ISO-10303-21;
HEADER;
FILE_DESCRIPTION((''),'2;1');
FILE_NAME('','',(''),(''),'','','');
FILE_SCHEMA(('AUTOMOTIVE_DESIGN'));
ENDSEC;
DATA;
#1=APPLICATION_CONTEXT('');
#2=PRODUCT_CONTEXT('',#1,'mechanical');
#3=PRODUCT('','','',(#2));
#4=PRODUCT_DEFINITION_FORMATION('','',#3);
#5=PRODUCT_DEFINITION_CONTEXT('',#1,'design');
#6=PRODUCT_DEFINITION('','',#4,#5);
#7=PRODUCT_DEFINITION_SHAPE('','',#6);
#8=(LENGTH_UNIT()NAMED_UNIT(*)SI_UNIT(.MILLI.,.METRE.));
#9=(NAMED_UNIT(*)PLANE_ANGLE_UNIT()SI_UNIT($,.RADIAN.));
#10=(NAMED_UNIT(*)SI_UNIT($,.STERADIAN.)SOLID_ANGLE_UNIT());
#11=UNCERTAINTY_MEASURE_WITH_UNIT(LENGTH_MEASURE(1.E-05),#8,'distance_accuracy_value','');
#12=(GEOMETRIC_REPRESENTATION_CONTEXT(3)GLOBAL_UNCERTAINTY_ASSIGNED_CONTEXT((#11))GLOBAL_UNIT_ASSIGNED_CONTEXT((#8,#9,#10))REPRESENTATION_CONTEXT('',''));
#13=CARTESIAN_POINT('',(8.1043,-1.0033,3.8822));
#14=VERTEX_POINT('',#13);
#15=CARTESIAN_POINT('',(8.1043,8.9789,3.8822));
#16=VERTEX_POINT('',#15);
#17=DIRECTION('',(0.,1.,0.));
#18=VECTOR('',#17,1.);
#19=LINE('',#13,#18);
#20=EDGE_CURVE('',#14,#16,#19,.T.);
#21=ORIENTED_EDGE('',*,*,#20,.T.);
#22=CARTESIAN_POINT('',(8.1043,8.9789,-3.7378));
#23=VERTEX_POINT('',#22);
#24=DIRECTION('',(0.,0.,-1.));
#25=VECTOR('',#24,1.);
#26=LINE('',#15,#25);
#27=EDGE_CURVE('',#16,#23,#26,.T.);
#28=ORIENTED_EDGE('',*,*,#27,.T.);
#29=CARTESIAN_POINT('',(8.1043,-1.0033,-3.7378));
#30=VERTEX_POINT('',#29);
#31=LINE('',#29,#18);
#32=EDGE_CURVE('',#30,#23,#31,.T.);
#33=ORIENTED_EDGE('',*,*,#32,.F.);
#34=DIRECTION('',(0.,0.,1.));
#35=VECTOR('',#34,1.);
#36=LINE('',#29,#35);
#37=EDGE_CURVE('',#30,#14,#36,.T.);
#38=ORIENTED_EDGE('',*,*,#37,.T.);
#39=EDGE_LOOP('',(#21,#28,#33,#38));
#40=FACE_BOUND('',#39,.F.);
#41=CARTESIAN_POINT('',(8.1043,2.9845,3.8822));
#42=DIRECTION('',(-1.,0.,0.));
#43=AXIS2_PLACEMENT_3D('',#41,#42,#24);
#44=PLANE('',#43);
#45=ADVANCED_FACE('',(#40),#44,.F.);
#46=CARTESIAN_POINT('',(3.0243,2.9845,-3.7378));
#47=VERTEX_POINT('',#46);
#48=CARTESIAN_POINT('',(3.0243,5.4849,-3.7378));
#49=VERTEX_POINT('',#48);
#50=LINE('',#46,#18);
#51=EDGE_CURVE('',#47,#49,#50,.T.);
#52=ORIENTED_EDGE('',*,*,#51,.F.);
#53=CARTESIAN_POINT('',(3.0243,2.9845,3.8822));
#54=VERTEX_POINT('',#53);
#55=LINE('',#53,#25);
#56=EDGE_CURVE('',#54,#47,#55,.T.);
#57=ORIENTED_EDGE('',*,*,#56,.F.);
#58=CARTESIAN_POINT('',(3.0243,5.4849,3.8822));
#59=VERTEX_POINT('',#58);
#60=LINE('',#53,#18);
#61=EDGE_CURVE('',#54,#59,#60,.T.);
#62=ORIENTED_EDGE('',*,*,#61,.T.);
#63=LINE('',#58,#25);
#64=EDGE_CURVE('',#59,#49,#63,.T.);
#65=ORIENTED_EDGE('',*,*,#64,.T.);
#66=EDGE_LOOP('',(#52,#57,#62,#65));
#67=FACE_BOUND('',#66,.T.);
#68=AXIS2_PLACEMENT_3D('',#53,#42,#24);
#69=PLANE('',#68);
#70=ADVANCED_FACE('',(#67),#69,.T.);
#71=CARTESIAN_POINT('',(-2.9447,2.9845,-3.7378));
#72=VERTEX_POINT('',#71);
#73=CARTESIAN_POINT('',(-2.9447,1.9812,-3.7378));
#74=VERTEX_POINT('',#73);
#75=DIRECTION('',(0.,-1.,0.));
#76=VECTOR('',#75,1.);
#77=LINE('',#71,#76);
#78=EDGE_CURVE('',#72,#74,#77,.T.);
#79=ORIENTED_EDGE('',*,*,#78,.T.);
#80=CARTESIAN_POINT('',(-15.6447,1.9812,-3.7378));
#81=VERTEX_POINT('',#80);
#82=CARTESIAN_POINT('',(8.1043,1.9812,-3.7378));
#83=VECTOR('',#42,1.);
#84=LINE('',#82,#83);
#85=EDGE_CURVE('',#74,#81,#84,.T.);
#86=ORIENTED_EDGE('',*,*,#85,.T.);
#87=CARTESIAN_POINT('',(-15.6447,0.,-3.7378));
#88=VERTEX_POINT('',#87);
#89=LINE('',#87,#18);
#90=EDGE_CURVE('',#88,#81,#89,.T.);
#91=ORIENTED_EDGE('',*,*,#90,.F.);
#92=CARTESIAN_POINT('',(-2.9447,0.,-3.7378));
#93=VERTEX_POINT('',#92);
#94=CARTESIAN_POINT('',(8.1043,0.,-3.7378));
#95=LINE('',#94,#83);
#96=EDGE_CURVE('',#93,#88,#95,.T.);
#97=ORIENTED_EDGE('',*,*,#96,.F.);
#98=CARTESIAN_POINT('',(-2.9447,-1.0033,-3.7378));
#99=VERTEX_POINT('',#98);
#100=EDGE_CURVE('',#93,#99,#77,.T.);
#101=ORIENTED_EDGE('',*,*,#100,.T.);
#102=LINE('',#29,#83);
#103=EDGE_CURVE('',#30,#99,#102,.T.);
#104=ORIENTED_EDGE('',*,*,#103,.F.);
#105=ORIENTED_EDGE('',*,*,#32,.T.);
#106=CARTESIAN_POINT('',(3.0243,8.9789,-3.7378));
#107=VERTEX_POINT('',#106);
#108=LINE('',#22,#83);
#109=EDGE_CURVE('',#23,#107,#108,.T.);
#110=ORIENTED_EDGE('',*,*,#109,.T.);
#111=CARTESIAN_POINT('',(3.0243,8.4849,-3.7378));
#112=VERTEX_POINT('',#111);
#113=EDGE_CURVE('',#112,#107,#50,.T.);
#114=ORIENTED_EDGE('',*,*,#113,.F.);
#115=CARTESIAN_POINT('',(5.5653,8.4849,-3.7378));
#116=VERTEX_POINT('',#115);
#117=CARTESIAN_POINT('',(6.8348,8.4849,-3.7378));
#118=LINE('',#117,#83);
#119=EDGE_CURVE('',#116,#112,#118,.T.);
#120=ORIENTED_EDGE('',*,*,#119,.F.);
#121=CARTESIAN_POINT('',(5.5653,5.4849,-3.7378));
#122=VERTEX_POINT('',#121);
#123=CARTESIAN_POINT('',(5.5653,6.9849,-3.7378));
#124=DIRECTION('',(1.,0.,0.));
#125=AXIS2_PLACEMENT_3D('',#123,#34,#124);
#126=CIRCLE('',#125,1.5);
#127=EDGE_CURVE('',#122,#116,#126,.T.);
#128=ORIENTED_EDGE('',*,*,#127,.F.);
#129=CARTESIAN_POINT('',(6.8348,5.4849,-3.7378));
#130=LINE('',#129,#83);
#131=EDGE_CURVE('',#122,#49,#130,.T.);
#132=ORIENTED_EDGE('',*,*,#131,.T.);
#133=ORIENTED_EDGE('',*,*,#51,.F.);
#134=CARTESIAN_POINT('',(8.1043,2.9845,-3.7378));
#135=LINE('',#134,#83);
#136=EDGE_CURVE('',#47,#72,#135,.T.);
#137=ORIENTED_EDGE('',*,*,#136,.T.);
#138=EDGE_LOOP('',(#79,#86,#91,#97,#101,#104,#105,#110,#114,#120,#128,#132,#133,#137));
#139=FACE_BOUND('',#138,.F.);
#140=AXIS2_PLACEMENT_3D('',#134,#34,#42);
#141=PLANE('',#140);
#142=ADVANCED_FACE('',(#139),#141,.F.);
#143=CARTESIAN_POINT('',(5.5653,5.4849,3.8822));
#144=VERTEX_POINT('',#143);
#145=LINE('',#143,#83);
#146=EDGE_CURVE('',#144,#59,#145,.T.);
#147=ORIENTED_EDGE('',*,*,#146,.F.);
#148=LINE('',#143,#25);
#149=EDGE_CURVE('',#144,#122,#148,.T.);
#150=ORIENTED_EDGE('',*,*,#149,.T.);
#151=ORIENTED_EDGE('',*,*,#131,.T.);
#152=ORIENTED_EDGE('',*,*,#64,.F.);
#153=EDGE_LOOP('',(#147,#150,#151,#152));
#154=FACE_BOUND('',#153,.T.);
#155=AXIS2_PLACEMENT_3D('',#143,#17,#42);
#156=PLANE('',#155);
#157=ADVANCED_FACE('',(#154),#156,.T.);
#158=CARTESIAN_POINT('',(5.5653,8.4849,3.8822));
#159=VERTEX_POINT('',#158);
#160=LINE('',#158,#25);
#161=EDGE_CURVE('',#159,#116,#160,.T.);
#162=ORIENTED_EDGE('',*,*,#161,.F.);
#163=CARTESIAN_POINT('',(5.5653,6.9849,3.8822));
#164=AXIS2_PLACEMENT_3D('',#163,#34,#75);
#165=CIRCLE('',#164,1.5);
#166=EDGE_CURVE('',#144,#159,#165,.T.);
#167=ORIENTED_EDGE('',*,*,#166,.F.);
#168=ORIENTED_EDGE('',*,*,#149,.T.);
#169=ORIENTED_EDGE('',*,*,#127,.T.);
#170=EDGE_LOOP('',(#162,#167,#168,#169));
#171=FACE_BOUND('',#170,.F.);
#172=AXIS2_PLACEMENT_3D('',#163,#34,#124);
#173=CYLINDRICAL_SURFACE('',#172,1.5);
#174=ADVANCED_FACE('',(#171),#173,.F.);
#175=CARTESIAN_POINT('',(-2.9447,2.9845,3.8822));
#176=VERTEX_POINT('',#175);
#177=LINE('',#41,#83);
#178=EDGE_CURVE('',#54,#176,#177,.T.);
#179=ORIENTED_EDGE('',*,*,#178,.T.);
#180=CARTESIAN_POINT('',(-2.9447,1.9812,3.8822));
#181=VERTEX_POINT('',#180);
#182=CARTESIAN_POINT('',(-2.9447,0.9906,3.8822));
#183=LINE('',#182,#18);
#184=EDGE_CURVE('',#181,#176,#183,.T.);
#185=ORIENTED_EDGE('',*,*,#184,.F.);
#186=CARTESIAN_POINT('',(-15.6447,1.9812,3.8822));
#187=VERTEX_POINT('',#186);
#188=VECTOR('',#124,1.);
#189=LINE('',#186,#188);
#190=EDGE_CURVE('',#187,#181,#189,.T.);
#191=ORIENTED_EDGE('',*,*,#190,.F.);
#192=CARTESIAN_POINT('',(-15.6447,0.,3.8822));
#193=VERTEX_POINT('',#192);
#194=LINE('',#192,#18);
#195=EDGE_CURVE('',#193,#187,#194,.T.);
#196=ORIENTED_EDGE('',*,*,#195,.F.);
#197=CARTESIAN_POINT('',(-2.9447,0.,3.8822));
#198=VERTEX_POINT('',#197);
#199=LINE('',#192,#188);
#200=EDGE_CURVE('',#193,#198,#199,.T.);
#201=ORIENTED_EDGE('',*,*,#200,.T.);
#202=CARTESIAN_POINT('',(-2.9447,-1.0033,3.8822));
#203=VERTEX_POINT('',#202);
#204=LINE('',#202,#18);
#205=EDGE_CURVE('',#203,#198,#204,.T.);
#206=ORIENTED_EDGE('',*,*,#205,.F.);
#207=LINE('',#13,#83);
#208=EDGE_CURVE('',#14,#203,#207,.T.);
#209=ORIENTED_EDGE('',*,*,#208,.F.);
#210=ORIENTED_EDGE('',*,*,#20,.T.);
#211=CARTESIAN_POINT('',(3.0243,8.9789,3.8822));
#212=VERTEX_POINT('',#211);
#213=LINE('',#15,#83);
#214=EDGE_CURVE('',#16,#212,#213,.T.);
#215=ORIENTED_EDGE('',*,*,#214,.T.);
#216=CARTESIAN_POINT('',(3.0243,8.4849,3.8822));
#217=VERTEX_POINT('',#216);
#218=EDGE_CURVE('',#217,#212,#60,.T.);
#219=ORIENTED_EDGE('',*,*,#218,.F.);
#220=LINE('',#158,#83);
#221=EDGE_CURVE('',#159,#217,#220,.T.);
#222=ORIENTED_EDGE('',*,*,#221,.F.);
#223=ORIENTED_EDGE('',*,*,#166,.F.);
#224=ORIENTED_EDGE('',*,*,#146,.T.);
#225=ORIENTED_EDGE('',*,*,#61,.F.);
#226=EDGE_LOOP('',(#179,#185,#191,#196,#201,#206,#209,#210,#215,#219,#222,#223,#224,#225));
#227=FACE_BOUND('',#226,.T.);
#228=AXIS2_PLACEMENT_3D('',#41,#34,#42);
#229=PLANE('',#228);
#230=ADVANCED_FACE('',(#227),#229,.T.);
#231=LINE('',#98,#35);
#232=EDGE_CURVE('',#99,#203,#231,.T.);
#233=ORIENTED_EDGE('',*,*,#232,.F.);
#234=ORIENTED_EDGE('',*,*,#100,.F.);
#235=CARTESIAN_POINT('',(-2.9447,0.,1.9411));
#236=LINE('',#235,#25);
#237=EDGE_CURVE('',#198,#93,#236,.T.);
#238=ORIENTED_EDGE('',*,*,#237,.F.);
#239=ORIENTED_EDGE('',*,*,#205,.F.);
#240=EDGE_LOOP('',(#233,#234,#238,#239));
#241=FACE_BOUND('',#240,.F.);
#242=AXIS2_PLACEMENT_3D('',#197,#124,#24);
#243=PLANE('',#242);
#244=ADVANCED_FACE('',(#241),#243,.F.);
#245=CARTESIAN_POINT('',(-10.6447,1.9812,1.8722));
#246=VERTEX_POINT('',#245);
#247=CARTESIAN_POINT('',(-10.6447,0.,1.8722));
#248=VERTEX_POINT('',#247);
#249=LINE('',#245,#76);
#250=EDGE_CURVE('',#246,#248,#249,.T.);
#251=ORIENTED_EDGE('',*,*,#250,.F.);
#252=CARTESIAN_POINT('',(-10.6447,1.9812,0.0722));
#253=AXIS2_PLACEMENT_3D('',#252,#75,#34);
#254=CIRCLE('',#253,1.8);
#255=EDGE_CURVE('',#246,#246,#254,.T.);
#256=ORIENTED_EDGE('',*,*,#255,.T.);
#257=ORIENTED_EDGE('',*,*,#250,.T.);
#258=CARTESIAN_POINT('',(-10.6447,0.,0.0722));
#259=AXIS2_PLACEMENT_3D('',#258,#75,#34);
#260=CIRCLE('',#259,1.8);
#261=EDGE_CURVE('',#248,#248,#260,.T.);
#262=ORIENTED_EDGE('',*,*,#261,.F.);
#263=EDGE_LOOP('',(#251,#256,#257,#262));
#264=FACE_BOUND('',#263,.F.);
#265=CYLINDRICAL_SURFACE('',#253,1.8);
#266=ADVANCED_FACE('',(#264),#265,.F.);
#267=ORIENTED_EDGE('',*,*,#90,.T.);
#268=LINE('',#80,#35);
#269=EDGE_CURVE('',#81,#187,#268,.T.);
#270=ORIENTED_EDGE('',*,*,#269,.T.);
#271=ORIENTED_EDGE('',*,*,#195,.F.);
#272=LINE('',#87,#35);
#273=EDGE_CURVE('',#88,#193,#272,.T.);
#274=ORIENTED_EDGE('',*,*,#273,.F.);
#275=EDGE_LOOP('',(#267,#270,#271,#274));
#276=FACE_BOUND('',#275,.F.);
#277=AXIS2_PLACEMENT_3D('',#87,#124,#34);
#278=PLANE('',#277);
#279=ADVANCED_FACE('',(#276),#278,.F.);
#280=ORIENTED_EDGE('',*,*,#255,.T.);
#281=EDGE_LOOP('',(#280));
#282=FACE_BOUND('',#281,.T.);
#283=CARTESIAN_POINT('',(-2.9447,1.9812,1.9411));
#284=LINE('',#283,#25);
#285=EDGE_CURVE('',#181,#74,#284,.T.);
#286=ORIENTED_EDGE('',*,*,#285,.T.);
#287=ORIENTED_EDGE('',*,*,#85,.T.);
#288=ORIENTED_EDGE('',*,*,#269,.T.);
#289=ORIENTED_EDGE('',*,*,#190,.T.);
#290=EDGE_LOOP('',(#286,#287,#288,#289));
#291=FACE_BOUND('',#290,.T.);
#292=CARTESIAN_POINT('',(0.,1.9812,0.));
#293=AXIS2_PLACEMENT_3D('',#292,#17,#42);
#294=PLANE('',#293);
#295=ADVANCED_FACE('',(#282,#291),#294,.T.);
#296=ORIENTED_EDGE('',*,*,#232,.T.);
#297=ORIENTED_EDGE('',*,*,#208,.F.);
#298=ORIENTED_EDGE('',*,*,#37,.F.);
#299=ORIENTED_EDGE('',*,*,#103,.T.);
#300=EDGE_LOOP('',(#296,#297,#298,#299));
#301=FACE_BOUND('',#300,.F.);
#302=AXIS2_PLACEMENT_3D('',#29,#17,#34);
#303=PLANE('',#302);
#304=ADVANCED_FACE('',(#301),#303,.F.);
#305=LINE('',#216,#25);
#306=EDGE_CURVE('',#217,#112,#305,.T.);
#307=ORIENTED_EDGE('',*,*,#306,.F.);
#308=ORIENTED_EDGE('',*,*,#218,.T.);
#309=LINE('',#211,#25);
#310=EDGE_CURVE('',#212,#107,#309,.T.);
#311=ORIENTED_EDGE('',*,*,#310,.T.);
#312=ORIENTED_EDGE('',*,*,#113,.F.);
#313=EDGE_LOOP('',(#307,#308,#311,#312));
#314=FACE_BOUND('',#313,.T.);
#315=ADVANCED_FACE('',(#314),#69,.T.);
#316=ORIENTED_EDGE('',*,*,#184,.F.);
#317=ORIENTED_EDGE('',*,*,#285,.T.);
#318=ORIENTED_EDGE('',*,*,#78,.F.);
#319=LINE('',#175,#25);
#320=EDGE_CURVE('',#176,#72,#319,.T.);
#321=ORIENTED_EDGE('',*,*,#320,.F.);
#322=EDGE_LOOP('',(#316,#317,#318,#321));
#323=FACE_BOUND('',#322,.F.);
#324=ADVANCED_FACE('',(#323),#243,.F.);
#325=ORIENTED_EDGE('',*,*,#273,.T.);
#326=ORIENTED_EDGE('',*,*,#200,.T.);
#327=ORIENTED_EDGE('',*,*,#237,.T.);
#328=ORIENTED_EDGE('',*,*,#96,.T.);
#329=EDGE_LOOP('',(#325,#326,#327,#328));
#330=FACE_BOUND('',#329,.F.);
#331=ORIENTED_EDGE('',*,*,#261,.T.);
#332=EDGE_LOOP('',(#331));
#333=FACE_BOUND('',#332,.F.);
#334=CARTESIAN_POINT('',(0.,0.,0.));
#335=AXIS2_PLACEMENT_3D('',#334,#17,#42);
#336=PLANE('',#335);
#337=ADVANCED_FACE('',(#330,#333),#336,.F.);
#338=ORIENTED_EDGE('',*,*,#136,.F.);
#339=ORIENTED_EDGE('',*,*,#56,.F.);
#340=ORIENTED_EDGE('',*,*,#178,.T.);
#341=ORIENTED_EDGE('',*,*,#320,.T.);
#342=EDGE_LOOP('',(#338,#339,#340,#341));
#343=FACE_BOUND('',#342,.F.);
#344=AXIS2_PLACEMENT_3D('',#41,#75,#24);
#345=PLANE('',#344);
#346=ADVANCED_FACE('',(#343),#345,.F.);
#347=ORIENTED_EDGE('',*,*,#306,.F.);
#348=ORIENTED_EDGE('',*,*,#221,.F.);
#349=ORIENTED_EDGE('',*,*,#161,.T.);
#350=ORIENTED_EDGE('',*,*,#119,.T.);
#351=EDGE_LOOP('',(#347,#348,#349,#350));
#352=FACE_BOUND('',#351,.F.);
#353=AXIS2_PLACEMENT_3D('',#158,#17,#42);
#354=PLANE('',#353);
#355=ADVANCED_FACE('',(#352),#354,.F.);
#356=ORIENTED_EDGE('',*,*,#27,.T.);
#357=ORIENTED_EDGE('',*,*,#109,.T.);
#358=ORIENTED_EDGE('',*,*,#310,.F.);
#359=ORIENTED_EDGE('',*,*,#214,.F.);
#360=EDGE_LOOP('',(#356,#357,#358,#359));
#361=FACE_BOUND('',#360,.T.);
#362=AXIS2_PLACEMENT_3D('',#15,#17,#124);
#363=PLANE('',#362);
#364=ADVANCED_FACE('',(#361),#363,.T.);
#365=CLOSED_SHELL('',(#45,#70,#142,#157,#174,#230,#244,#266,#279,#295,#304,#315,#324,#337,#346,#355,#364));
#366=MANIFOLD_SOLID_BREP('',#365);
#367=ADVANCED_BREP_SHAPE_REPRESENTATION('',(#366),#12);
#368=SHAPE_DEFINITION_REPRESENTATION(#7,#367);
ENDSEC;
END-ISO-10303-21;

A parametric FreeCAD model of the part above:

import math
import FreeCAD as App
import Part
import Sketcher
from FreeCAD import Vector
Q = App.Units.Quantity


def add_polygon(sketch, points):
    """Adds a closed chain of lines whose ends are joined by coincident constraints."""
    first, n = sketch.GeometryCount, len(points)
    for a, b in zip(points, points[1:] + points[:1]):
        sketch.addGeometry(Part.LineSegment(App.Vector(*a, 0), App.Vector(*b, 0)), False)
    for i in range(n):
        sketch.addConstraint(Sketcher.Constraint("Coincident", first + i, 2, first + (i + 1) % n, 1))

doc = App.newDocument("Part")
params = doc.addObject("Spreadsheet::Sheet", "Params")
for row, (alias, value) in enumerate([
    ("sketch1_height", "0.3 in"),
    ("sketch1_width", "0.935 in"),
    ("pad1_length", "0.078 in"),
    ("sketch2_width", "0.157 in"),
    ("sketch2_height", "0.3 in"),
    ("pad2_length", "0.435 in"),
    ("sketch3_width", "0.2 in"),
    ("sketch3_height", "0.3 in"),
    ("pad3_length", "0.236 in"),
    ("pocket1_length", "0.3937008 in"),
    ("hole_diameter", "3.6 mm"),
], start=1):
    params.set(f"A{row}", alias)
    params.set(f"B{row}", "=" + value)
    params.setAlias(f"B{row}", alias)

body = doc.addObject("PartDesign::Body", "Body")

# Sketch on XZ plane
sketch1 = doc.addObject("Sketcher::SketchObject", "Sketch")
body.addObject(sketch1)
sketch1.AttachmentSupport = (doc.XZ_Plane, [""])
sketch1.MapMode = "FlatFace"
add_polygon(sketch1, [(-16, -4), (-16, 4), (8, 4), (8, -4)])  # lines 0-3
sketch1.addConstraint([
    Sketcher.Constraint("Vertical", 0),
    Sketcher.Constraint("Horizontal", 1),
    Sketcher.Constraint("Vertical", 2),
    Sketcher.Constraint("Horizontal", 3),
    Sketcher.Constraint("DistanceY", 0, 1, 0, 2, Q("0.3 in")),
    Sketcher.Constraint("DistanceX", 1, 1, 1, 2, Q("0.935 in")),
    Sketcher.Constraint("DistanceX", 0, 2, -1, 1, Q("15.6447 mm")),
    Sketcher.Constraint("DistanceY", -1, 1, 0, 2, Q("3.8822 mm")),
])
sketch1.setExpression("Constraints[8]", "Params.sketch1_height")
sketch1.setExpression("Constraints[9]", "Params.sketch1_width")
pad1 = doc.addObject("PartDesign::Pad", "Pad")
body.addObject(pad1)
pad1.Profile = sketch1
pad1.setExpression("Length", "Params.pad1_length")
pad1.Reversed = True

# Sketch on YZ plane
sketch2 = doc.addObject("Sketcher::SketchObject", "Sketch001")
body.addObject(sketch2)
sketch2.AttachmentSupport = (doc.YZ_Plane, [""])
sketch2.MapMode = "FlatFace"
sketch2.AttachmentOffset = App.Placement(Vector(0, 0, 8.1043), App.Rotation())
add_polygon(sketch2, [(3, 3.9), (-1, 3.9), (-1, -3.7), (3, -3.7)])  # lines 0-3
sketch2.addConstraint([
    Sketcher.Constraint("Horizontal", 0),
    Sketcher.Constraint("Vertical", 1),
    Sketcher.Constraint("Horizontal", 2),
    Sketcher.Constraint("Vertical", 3),
    Sketcher.Constraint("DistanceX", 0, 2, 0, 1, Q("0.157 in")),
    Sketcher.Constraint("DistanceY", 1, 2, 1, 1, Q("0.3 in")),
    Sketcher.Constraint("DistanceX", 0, 2, -1, 1, Q("0.0395 in")),
    Sketcher.Constraint("DistanceY", -1, 1, 0, 2, Q("3.8822 mm")),
])
sketch2.setExpression("Constraints[8]", "Params.sketch2_width")
sketch2.setExpression("Constraints[9]", "Params.sketch2_height")
pad2 = doc.addObject("PartDesign::Pad", "Pad001")
body.addObject(pad2)
pad2.Profile = sketch2
pad2.setExpression("Length", "Params.pad2_length")
pad2.Reversed = True

# Sketch on XZ plane
sketch3 = doc.addObject("Sketcher::SketchObject", "Sketch002")
body.addObject(sketch3)
sketch3.AttachmentSupport = (doc.XZ_Plane, [""])
sketch3.MapMode = "FlatFace"
sketch3.AttachmentOffset = App.Placement(Vector(0, 0, -0.1175 * 25.4), App.Rotation())
add_polygon(sketch3, [(3, 4), (8, 4), (8, -4), (3, -4)])  # lines 0-3
sketch3.addConstraint([
    Sketcher.Constraint("Horizontal", 0),
    Sketcher.Constraint("Vertical", 1),
    Sketcher.Constraint("Horizontal", 2),
    Sketcher.Constraint("Vertical", 3),
    Sketcher.Constraint("DistanceX", 0, 1, 0, 2, Q("0.2 in")),
    Sketcher.Constraint("DistanceY", 1, 2, 1, 1, Q("0.3 in")),
    Sketcher.Constraint("DistanceX", -1, 1, 0, 2, Q("8.1043 mm")),
    Sketcher.Constraint("DistanceY", -1, 1, 0, 2, Q("3.8822 mm")),
])
sketch3.setExpression("Constraints[8]", "Params.sketch3_width")
sketch3.setExpression("Constraints[9]", "Params.sketch3_height")
pad3 = doc.addObject("PartDesign::Pad", "Pad002")
body.addObject(pad3)
pad3.Profile = sketch3
pad3.setExpression("Length", "Params.pad3_length")
pad3.Reversed = True

# Sketch on XY plane
sketch4 = doc.addObject("Sketcher::SketchObject", "Sketch003")
body.addObject(sketch4)
sketch4.AttachmentSupport = (doc.XY_Plane, [""])
sketch4.MapMode = "FlatFace"
sketch4.AttachmentOffset = App.Placement(Vector(0, 0, 3.8822), App.Rotation())
sketch4.addGeometry([
    Part.LineSegment(Vector(3, 5.5, 0), Vector(5.6, 5.5, 0)),
    Part.ArcOfCircle(Part.Circle(Vector(5.6, 7, 0), Vector(0, 0, 1), 1.5), math.radians(-90), math.radians(90)),
    Part.LineSegment(Vector(5.6, 8.5, 0), Vector(3, 8.5, 0)),
    Part.LineSegment(Vector(3, 8.5, 0), Vector(3, 5.5, 0)),
], False)
sketch4.addConstraint([
    Sketcher.Constraint("Tangent", 0, 2, 1, 1),
    Sketcher.Constraint("Tangent", 1, 2, 2, 1),
    Sketcher.Constraint("Coincident", 2, 2, 3, 1),
    Sketcher.Constraint("Coincident", 3, 2, 0, 1),
    Sketcher.Constraint("Horizontal", 0),
    Sketcher.Constraint("Horizontal", 2),
    Sketcher.Constraint("Vertical", 3),
    Sketcher.Constraint("Radius", 1, Q("1.5 mm")),
    Sketcher.Constraint("DistanceX", 0, 1, 0, 2, Q("2.541 mm")),
    Sketcher.Constraint("DistanceY", -1, 1, 1, 3, Q("0.275 in")),
    Sketcher.Constraint("DistanceX", -1, 1, 1, 3, Q("0.2191 in")),
])
pocket1 = doc.addObject("PartDesign::Pocket", "Pocket")
body.addObject(pocket1)
pocket1.Profile = sketch4
pocket1.setExpression("Length", "Params.pocket1_length")

# Sketch on XZ plane
sketch5 = doc.addObject("Sketcher::SketchObject", "Sketch004")
body.addObject(sketch5)
sketch5.AttachmentSupport = (doc.XZ_Plane, [""])
sketch5.MapMode = "FlatFace"
sketch5.AttachmentOffset = App.Placement(Vector(0, 0, -0.078 * 25.4), App.Rotation())
sketch5.addGeometry(Part.Circle(Vector(-10.6, 0.1, 0), Vector(0, 0, 1), 1.8), False)
sketch5.addConstraint([
    Sketcher.Constraint("Diameter", 0, Q("3.6 mm")),
    Sketcher.Constraint("DistanceX", 0, 3, -1, 1, Q("10.6447 mm")),
    Sketcher.Constraint("DistanceY", -1, 1, 0, 3, Q("0.0722 mm")),
])
doc.recompute()
hole = doc.addObject("PartDesign::Hole", "Hole")
body.addObject(hole)
hole.Profile = sketch5
hole.ThreadType = "None"
hole.setExpression("Diameter", "Params.hole_diameter")
hole.DepthType = "ThroughAll"
hole.Reversed = True

doc.recompute()
